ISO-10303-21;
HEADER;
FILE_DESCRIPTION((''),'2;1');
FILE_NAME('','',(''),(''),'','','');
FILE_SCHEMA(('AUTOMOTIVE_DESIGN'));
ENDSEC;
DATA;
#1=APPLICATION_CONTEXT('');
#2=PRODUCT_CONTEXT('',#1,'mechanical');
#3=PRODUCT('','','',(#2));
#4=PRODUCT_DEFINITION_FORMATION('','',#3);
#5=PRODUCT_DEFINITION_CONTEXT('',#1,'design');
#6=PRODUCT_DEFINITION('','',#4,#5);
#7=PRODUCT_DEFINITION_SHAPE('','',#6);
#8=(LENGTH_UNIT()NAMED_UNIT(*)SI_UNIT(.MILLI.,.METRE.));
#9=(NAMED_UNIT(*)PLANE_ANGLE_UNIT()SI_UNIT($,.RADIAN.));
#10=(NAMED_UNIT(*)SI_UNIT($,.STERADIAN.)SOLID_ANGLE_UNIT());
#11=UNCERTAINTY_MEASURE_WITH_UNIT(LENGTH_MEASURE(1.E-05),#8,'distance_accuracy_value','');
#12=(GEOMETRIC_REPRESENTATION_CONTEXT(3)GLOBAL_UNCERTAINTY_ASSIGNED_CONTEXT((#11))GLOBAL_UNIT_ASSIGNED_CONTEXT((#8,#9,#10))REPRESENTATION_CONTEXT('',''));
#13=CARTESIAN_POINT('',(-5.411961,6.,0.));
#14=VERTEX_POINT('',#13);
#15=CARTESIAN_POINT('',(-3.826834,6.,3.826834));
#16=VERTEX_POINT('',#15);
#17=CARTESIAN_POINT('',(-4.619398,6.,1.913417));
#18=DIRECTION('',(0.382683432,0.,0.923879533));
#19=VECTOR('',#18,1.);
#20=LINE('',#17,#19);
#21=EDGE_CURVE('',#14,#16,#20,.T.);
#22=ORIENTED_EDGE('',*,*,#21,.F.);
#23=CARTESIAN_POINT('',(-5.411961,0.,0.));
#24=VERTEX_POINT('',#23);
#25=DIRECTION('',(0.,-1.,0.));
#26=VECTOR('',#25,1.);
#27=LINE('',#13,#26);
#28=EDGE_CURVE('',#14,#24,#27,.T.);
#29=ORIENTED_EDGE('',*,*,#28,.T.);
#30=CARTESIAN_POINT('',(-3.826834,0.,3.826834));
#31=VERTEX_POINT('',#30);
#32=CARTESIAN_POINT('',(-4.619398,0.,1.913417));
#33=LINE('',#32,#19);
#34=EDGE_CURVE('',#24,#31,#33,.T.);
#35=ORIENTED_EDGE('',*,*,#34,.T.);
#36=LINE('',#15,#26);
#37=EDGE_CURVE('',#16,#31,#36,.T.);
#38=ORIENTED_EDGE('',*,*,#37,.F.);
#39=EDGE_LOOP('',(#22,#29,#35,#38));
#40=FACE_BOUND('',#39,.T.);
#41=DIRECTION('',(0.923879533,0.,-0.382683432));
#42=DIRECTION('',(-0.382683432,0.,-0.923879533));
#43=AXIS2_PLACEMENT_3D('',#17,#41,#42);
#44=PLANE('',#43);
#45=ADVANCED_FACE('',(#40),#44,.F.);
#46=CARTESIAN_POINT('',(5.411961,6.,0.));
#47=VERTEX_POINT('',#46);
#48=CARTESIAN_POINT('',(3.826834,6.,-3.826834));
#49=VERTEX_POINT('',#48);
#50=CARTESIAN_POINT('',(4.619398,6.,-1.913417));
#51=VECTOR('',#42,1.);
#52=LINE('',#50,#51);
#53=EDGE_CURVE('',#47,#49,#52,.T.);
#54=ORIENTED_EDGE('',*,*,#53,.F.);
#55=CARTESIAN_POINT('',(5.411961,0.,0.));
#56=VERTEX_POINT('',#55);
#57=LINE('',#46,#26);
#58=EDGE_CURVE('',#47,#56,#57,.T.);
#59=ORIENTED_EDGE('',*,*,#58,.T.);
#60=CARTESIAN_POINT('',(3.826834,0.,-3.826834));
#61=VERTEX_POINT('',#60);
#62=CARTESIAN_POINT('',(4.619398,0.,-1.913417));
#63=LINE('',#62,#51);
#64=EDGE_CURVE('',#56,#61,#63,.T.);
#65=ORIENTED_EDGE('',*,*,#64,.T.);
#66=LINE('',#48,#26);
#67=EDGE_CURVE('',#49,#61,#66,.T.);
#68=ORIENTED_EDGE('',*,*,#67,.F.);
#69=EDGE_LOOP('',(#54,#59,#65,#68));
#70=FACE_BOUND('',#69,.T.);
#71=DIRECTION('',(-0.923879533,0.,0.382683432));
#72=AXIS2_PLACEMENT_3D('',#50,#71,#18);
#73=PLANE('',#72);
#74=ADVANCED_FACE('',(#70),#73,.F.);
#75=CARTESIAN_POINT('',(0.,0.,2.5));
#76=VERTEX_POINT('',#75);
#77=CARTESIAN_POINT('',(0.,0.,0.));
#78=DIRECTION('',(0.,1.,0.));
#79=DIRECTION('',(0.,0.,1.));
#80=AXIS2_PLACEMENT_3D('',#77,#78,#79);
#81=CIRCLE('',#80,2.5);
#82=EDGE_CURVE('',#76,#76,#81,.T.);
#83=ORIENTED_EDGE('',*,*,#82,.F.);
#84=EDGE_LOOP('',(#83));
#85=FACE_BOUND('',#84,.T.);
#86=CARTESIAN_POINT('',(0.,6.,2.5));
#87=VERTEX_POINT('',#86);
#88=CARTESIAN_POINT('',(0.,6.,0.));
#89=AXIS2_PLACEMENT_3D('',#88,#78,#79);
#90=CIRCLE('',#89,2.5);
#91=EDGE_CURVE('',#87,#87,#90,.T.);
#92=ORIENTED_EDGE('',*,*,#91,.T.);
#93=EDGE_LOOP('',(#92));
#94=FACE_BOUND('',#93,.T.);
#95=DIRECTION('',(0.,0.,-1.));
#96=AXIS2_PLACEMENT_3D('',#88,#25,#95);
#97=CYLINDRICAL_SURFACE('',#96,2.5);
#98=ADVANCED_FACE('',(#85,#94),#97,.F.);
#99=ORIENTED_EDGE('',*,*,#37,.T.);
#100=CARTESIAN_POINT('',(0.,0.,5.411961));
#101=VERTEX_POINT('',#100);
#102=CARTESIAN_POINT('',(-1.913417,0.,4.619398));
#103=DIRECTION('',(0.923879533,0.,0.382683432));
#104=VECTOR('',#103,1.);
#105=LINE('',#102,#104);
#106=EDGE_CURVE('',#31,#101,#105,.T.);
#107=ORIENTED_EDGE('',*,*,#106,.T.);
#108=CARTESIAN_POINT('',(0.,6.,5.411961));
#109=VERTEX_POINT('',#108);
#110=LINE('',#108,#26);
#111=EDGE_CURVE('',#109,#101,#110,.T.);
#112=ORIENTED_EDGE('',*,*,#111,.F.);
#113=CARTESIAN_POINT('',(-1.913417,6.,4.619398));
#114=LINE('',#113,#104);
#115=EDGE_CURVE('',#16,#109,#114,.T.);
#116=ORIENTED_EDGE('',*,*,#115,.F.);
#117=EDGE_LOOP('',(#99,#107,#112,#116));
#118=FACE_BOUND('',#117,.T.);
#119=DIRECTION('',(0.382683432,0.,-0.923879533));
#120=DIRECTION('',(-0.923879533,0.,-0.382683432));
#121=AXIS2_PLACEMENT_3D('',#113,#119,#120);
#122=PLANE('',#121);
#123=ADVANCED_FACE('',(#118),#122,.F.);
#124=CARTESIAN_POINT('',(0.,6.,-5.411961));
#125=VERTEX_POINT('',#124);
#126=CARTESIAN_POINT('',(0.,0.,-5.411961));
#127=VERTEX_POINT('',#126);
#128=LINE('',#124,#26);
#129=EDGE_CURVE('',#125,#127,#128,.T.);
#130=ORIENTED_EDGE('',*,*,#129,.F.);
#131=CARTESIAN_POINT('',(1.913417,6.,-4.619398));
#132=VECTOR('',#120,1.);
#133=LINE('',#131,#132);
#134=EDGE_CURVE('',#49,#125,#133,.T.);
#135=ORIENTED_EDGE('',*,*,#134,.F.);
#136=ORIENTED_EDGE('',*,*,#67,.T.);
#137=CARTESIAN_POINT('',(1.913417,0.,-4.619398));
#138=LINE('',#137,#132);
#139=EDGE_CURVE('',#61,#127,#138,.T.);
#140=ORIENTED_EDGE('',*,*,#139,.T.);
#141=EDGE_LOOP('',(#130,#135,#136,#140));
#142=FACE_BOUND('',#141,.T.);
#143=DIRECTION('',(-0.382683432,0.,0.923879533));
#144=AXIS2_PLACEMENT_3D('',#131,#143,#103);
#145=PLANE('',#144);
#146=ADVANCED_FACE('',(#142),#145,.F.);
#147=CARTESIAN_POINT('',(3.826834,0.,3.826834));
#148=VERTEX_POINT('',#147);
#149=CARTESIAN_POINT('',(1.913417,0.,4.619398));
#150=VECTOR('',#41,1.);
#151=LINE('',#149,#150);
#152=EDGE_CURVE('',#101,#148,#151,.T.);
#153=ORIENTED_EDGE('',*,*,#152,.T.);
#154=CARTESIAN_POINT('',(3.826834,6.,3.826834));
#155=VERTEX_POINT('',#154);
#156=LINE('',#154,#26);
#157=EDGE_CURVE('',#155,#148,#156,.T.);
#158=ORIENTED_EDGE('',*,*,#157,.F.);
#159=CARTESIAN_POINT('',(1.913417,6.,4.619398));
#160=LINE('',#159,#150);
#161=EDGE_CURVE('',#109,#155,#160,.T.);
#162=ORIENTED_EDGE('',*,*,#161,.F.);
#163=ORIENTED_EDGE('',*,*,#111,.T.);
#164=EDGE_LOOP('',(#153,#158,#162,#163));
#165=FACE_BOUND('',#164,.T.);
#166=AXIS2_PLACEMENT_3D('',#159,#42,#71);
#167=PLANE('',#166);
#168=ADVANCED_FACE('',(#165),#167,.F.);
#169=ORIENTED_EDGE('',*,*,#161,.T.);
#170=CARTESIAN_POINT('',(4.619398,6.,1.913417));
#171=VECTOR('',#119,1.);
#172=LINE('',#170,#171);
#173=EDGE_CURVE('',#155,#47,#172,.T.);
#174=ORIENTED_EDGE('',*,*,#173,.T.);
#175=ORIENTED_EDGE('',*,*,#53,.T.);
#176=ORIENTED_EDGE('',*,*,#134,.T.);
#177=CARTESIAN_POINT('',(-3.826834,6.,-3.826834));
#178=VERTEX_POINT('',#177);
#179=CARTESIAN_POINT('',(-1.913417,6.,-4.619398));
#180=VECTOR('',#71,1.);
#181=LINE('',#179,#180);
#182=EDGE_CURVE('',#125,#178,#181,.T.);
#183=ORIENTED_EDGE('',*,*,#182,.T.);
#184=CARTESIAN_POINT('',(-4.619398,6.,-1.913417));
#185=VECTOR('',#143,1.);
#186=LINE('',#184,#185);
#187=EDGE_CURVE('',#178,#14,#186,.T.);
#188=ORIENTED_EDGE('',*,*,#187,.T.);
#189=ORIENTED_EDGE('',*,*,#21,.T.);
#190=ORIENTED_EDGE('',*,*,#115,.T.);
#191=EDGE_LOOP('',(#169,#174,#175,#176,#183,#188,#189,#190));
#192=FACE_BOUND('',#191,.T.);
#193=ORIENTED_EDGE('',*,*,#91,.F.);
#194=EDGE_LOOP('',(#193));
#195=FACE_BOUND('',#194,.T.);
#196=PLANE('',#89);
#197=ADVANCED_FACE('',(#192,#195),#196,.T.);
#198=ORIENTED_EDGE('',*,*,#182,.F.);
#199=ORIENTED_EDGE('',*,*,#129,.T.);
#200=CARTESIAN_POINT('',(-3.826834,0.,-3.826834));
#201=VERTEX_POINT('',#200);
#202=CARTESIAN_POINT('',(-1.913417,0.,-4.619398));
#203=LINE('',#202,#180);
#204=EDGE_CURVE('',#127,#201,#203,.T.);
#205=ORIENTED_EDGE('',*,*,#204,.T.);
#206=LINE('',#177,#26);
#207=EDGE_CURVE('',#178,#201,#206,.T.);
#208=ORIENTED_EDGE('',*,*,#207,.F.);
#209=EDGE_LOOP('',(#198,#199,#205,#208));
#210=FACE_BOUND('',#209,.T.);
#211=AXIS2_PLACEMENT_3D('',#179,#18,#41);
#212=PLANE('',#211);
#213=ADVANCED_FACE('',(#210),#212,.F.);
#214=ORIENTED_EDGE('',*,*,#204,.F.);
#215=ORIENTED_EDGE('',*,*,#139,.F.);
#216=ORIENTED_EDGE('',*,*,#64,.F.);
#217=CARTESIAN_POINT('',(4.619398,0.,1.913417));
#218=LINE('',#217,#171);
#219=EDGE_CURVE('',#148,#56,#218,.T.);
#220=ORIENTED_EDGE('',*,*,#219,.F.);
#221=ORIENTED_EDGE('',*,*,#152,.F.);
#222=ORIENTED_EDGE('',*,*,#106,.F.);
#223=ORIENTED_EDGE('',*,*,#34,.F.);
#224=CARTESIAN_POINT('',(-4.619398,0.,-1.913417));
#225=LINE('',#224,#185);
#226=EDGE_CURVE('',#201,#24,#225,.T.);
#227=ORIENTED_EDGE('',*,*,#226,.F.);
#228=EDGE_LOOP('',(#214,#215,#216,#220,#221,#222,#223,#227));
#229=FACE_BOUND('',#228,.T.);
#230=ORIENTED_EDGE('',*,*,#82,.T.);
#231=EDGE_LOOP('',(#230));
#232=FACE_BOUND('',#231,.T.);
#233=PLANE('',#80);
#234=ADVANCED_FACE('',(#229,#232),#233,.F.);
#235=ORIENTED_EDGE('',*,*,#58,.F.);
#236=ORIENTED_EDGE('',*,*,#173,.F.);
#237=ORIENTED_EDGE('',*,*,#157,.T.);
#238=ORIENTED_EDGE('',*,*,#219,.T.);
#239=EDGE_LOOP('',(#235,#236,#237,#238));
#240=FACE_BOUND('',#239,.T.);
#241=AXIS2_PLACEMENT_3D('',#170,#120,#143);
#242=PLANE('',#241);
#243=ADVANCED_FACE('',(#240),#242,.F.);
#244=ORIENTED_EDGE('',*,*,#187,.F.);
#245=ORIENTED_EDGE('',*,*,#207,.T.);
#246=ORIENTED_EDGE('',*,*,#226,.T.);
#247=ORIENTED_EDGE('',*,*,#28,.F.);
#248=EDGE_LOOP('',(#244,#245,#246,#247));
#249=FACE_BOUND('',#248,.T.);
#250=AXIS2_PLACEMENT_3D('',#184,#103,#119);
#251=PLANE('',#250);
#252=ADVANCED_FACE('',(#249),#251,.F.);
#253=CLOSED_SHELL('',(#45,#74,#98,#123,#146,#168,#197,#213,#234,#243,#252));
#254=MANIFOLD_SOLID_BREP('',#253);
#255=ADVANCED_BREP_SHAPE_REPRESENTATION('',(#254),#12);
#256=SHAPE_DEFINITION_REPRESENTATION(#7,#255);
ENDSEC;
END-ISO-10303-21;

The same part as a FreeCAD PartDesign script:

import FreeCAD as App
import Part
import Sketcher

V = App.Vector
Q = App.Units.Quantity


def add_polygon(sketch, points):
    """Adds a closed chain of lines whose ends are joined by coincident constraints."""
    first, n = sketch.GeometryCount, len(points)
    for a, b in zip(points, points[1:] + points[:1]):
        sketch.addGeometry(Part.LineSegment(App.Vector(*a, 0), App.Vector(*b, 0)), False)
    for i in range(n):
        sketch.addConstraint(Sketcher.Constraint("Coincident", first + i, 2, first + (i + 1) % n, 1))

doc = App.newDocument("Part")
params = doc.addObject("Spreadsheet::Sheet", "Params")
for row, (alias, value) in enumerate([
    ("sketch1_diameter", "5 mm"),
    ("pad1_length", "6 mm"),
], start=1):
    params.set(f"A{row}", alias)
    params.set(f"B{row}", "=" + value)
    params.setAlias(f"B{row}", alias)

body = doc.addObject("PartDesign::Body", "Body")

sketch1 = body.newObject("Sketcher::SketchObject", "Sketch")
sketch1.AttachmentSupport = (doc.getObject("XZ_Plane"), [""])
sketch1.MapMode = "FlatFace"
add_polygon(sketch1, [(0, 5.4), (3.8, 3.8), (5.4, 0), (3.8, -3.8), (0, -5.4), (-3.8, -3.8), (-5.4, 0), (-3.8, 3.8)])
sketch1.addGeometry(Part.Circle(V(0, 0, 0), V(0, 0, 1), 2.5), False)
sketch1.addConstraint(Sketcher.Constraint("Coincident", 8, 3, -1, 1))
sketch1.addConstraint(Sketcher.Constraint("Symmetric", 0, 2, 4, 2, -1, 1))
sketch1.addConstraint(Sketcher.Constraint("Symmetric", 1, 2, 5, 2, -1, 1))
sketch1.addConstraint(Sketcher.Constraint("Symmetric", 2, 2, 6, 2, -1, 1))
sketch1.addConstraint(Sketcher.Constraint("Symmetric", 3, 2, 7, 2, -1, 1))
sketch1.addConstraint(Sketcher.Constraint("Symmetric", 2, 2, 4, 2, -2))
sketch1.addConstraint(Sketcher.Constraint("PointOnObject", 1, 2, -1))
sketch1.addConstraint(Sketcher.Constraint("PointOnObject", 3, 2, -2))
sketch1.addConstraint(Sketcher.Constraint("Perpendicular", 0, 2))
sketch1.addConstraint(Sketcher.Constraint("Equal", 0, 1))
sketch1.addConstraint(Sketcher.Constraint("Diameter", 8, 5.0))
sketch1.addConstraint(Sketcher.Constraint("Angle", 0, Q("-22.5 deg")))
sketch1.addConstraint(Sketcher.Constraint("DistanceX", -1, 1, 1, 2, 5.411961))
sketch1.setExpression("Constraints[18]", "Params.sketch1_diameter")
pad1 = body.newObject("PartDesign::Pad", "Pad")
pad1.Profile = sketch1
pad1.setExpression("Length", "Params.pad1_length")
pad1.Reversed = True

doc.recompute()
